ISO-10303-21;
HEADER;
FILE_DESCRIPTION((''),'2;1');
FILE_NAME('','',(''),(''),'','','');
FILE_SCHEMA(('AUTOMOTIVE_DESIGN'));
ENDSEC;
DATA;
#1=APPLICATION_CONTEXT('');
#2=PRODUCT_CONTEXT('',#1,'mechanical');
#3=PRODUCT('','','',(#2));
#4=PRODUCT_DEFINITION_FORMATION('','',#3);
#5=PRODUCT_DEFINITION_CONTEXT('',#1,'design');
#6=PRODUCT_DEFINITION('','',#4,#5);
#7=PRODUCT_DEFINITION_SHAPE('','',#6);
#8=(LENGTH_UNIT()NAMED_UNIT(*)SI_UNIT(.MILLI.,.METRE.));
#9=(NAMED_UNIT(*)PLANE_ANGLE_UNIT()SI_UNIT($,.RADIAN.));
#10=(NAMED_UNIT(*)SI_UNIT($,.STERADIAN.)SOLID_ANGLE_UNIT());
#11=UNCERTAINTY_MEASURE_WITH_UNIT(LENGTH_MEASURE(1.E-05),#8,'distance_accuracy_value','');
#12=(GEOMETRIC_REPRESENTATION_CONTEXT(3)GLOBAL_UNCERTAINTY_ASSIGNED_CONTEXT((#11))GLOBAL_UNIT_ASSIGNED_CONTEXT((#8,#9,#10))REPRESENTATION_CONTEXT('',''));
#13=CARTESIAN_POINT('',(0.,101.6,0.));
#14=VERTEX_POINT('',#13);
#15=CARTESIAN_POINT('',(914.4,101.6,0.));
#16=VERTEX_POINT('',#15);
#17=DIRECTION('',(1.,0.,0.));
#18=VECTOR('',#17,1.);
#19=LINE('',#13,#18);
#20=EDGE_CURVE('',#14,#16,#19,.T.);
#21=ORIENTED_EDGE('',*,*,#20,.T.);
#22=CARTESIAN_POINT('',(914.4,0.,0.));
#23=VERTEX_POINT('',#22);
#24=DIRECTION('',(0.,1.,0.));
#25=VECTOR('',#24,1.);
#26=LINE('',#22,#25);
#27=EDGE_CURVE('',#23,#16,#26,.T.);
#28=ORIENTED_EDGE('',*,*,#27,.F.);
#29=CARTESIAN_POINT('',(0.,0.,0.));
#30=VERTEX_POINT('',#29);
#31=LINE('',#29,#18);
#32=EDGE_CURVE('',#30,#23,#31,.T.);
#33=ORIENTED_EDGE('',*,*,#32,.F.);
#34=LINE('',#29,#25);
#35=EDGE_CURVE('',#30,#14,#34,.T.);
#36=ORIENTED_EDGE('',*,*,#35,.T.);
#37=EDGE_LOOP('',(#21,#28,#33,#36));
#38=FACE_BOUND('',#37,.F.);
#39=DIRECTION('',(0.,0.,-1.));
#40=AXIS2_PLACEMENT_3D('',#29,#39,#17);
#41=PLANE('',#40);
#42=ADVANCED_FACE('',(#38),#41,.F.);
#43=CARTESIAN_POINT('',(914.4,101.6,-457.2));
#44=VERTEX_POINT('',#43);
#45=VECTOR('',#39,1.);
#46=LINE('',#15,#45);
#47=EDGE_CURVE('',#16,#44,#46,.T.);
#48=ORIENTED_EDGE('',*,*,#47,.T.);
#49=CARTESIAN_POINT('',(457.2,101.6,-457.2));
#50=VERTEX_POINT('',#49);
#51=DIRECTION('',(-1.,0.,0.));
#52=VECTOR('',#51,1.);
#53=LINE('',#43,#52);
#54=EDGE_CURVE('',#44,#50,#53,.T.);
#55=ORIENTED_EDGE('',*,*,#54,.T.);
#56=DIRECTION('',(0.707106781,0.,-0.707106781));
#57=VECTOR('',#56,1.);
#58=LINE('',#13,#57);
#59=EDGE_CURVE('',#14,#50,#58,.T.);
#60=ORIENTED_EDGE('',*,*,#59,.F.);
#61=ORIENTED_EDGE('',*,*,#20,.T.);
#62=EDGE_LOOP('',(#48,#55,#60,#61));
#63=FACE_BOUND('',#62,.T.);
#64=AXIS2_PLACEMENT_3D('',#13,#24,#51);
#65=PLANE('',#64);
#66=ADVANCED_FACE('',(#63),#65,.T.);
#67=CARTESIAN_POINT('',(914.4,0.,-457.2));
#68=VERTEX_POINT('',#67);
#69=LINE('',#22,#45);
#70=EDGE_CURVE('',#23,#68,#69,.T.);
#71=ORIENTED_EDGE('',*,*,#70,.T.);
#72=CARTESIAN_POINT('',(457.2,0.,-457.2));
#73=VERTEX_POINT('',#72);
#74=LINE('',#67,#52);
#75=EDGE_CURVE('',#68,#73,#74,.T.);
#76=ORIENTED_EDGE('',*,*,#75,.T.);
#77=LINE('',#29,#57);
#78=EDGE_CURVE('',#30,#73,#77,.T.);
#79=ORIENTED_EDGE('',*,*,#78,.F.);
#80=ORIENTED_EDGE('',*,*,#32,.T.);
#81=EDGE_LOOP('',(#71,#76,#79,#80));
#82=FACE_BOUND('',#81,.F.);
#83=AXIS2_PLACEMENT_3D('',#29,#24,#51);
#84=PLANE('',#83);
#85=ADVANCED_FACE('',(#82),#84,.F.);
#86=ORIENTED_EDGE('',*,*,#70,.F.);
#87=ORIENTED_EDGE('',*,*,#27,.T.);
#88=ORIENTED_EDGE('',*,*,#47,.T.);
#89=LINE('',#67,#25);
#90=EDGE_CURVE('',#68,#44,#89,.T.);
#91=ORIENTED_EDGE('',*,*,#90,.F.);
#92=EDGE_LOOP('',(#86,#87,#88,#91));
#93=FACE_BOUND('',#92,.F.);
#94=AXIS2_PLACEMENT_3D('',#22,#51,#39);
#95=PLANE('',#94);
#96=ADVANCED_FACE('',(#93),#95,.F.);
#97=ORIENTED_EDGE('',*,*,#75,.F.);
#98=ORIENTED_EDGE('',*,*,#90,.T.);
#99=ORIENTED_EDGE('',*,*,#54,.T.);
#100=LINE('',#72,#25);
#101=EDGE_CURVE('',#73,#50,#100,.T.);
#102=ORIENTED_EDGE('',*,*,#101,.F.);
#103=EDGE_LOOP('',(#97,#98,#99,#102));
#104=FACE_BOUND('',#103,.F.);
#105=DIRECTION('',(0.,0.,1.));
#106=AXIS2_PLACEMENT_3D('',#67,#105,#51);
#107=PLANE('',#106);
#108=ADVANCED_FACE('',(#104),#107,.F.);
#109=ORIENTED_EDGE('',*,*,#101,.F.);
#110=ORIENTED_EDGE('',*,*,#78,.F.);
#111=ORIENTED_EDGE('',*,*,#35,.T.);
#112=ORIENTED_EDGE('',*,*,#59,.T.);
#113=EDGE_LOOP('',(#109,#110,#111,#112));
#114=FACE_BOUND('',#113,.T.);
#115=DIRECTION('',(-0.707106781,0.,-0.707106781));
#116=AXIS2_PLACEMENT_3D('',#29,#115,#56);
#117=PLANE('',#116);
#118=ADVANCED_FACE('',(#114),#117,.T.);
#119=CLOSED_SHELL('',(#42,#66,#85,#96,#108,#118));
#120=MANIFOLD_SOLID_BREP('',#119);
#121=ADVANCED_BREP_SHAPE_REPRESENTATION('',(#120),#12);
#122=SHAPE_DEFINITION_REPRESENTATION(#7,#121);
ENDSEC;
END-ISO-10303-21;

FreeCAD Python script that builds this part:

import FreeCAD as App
import Part
import Sketcher
from FreeCAD import Vector
Q = App.Units.Quantity

doc = App.newDocument("Part")
body = doc.addObject("PartDesign::Body", "Body")

# Sketch on XZ plane
sketch1 = body.newObject("Sketcher::SketchObject", "Sketch")
sketch1.AttachmentSupport = (doc.getObject("XZ_Plane"), [""])
sketch1.MapMode = "FlatFace"
sketch1.addGeometry([
    Part.LineSegment(Vector(457.2, -457.2, 0), Vector(0, 0, 0)),
    Part.LineSegment(Vector(0, 0, 0), Vector(914.4, 0, 0)),
    Part.LineSegment(Vector(914.4, 0, 0), Vector(914.4, -457.2, 0)),
    Part.LineSegment(Vector(914.4, -457.2, 0), Vector(457.2, -457.2, 0)),
], False)
sketch1.addConstraint([
    Sketcher.Constraint("Coincident", 0, 2, 1, 1),
    Sketcher.Constraint("Coincident", 1, 2, 2, 1),
    Sketcher.Constraint("Coincident", 2, 2, 3, 1),
    Sketcher.Constraint("Coincident", 3, 2, 0, 1),
    Sketcher.Constraint("Horizontal", 1),
    Sketcher.Constraint("Vertical", 2),
    Sketcher.Constraint("Horizontal", 3),
    Sketcher.Constraint("Coincident", 0, 2, -1, 1),
    Sketcher.Constraint("Equal", 3, 2),
    Sketcher.Constraint("DistanceX", 1, 1, 1, 2, Q("36 in")),
    Sketcher.Constraint("DistanceX", 3, 2, 3, 1, Q("18 in")),
])
pad1 = body.newObject("PartDesign::Pad", "Pad")
pad1.Profile = sketch1
pad1.Length = Q("4 in")
pad1.Reversed = True

doc.recompute()
